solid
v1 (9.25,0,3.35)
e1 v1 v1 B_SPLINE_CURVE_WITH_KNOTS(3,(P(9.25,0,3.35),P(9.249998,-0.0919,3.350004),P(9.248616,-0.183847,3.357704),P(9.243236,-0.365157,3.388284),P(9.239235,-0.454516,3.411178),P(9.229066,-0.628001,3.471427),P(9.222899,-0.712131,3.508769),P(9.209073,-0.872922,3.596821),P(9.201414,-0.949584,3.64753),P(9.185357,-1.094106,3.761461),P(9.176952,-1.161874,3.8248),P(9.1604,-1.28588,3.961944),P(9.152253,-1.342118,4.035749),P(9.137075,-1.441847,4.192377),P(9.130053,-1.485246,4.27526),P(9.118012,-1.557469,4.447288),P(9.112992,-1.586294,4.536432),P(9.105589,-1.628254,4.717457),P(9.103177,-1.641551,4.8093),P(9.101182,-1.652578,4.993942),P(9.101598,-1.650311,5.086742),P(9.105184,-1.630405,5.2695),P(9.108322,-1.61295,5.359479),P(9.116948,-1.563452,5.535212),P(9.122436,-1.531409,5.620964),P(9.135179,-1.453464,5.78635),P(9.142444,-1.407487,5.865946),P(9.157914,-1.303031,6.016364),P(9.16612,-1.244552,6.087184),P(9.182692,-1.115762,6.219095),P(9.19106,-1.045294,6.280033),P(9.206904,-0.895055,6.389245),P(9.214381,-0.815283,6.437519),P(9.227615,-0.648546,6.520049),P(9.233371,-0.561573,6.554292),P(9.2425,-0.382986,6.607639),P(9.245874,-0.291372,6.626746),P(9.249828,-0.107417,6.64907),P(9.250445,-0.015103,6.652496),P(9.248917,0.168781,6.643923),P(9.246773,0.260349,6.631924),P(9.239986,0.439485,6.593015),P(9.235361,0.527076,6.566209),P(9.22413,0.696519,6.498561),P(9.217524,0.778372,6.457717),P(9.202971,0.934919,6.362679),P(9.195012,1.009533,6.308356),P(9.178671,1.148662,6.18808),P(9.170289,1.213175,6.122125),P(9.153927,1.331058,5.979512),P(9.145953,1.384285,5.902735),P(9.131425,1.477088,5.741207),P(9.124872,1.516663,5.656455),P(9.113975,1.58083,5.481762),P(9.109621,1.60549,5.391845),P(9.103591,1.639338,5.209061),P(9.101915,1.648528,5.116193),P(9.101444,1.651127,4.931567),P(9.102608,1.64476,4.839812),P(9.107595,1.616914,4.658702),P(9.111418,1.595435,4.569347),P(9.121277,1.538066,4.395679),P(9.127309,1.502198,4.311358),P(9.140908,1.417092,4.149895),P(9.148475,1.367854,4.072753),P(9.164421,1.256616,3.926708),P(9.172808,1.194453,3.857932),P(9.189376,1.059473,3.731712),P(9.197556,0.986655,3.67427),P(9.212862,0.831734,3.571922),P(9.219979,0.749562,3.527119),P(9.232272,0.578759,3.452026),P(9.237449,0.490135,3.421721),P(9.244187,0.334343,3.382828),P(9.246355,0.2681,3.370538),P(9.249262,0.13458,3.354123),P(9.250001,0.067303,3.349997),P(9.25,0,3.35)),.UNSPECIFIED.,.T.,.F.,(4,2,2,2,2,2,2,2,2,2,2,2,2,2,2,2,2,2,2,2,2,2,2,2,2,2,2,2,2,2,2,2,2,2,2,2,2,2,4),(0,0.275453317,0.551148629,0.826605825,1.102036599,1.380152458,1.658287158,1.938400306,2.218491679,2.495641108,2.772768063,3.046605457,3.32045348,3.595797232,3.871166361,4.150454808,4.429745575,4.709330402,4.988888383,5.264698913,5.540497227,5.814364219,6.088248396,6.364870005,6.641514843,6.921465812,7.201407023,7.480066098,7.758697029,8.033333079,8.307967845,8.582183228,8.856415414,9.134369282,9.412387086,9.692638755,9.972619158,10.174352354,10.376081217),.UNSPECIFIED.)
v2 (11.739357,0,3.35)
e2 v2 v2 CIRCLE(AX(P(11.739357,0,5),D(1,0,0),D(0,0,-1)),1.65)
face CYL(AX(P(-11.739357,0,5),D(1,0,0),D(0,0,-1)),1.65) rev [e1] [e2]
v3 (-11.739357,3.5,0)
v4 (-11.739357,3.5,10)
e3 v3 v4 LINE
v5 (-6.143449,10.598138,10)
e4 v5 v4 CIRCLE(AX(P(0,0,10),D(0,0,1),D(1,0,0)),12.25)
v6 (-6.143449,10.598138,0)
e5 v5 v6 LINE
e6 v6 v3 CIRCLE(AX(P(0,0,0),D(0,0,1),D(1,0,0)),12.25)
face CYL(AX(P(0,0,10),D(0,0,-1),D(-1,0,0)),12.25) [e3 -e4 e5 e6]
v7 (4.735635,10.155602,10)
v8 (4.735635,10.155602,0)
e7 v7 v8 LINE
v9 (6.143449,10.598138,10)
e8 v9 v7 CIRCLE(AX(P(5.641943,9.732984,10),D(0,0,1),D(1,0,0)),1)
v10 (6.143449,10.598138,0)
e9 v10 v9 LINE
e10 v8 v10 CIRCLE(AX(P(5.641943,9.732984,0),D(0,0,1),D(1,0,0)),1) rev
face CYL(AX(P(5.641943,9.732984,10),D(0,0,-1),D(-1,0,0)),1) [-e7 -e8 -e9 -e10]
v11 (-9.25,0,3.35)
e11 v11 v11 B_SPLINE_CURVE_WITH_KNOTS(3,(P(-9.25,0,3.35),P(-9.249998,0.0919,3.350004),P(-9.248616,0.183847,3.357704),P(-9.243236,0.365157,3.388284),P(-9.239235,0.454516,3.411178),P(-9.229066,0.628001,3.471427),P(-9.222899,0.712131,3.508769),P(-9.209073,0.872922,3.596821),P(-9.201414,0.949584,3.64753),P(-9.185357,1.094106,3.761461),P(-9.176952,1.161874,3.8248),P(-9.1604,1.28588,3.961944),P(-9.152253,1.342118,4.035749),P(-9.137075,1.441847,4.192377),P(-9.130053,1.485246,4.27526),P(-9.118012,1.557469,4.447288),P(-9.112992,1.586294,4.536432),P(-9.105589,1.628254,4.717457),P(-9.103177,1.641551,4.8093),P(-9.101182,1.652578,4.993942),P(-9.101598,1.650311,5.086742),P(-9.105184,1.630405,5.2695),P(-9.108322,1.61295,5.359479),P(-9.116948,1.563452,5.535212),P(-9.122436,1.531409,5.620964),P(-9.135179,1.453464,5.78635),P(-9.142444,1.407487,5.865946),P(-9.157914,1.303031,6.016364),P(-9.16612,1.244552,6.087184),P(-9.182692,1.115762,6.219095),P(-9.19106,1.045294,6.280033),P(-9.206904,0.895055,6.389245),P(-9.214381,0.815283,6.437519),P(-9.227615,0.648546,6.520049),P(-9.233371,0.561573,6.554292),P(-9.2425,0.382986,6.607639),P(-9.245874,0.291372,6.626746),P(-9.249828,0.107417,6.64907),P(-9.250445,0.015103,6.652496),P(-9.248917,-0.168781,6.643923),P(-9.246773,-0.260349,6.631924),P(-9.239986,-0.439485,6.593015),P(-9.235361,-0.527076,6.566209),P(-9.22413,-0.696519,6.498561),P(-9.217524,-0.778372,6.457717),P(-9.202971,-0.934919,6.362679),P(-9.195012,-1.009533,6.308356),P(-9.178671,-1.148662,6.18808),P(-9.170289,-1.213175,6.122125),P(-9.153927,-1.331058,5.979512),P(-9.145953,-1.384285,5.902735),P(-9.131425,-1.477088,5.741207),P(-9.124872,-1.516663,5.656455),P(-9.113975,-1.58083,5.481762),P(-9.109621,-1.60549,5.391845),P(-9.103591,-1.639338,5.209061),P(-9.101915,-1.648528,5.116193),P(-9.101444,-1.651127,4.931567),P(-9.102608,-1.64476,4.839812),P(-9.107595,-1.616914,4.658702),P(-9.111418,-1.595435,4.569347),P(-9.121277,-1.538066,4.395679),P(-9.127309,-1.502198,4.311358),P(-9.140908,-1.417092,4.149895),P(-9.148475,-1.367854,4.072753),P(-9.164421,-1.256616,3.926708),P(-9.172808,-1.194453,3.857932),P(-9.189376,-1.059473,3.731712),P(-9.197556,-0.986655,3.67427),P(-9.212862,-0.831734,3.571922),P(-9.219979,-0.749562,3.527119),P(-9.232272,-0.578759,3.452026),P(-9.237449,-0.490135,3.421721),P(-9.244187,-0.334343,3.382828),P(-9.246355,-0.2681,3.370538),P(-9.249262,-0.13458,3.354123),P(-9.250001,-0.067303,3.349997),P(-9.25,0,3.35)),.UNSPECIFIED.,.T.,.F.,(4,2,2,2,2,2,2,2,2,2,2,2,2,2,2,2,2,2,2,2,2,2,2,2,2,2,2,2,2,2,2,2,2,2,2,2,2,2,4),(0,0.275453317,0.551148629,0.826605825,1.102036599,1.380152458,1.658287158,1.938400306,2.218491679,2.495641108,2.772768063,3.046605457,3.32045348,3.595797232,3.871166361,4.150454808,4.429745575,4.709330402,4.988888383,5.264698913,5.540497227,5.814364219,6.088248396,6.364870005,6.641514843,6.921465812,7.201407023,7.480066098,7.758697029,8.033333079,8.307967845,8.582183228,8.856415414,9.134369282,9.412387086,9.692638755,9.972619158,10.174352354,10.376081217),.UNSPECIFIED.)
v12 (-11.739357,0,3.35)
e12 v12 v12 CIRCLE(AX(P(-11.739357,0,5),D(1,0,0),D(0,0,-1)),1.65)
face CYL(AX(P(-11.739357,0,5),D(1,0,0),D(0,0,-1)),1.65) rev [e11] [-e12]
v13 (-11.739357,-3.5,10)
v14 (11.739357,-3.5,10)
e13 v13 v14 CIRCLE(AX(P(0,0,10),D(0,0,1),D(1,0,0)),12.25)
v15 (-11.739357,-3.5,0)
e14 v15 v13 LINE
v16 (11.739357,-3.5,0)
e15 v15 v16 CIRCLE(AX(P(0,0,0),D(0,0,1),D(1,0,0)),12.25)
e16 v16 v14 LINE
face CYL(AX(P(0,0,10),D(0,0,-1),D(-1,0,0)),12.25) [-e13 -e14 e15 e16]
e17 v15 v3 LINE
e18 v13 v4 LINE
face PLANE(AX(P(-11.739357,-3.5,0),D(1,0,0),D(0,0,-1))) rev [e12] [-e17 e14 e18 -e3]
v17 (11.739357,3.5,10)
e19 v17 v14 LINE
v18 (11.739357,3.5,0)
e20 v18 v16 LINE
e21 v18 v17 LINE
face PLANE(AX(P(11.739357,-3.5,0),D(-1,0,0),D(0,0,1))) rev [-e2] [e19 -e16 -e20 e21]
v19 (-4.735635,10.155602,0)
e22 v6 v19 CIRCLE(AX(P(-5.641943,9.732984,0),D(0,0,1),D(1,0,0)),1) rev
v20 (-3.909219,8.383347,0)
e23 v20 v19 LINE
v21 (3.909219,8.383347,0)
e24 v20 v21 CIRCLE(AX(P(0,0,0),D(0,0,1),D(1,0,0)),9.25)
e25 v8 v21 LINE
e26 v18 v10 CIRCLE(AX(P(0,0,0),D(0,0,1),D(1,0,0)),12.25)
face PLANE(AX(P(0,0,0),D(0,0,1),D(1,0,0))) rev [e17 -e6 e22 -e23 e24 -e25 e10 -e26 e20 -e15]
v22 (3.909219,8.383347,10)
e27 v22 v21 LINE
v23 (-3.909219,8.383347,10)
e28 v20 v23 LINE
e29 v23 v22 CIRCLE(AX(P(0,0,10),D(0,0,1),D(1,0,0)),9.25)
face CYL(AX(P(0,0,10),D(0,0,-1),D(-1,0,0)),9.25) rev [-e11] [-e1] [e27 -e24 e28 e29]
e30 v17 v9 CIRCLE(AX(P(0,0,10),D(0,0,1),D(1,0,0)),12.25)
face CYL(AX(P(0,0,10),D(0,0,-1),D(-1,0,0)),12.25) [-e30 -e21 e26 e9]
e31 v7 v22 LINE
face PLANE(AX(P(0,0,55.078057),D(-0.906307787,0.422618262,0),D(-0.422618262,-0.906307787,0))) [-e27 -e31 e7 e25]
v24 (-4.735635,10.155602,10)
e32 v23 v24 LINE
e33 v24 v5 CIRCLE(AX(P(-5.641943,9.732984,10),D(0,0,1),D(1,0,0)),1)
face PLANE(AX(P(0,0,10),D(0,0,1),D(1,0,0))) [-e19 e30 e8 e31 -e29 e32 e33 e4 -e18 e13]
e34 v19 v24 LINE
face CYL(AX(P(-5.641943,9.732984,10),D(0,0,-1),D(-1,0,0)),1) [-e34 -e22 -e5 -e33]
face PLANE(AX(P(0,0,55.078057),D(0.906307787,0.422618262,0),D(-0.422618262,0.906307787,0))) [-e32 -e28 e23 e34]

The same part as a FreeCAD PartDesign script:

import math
import FreeCAD as App
import Part
import Sketcher
from FreeCAD import Vector
Q = App.Units.Quantity


def edges_at(feature, points):
    """Names of the edges that pass closest to the given points."""
    edges = feature.Shape.Edges
    near = lambda p: min(range(len(edges)), key=lambda i: edges[i].distToShape(Part.Vertex(*p))[0])
    return sorted({f"Edge{near(p) + 1}" for p in points})

doc = App.newDocument("Part")
params = doc.addObject("Spreadsheet::Sheet", "Params")
for row, (alias, value) in enumerate([
    ("sketch1_diameter", "24.5 mm"),
    ("sketch1_diameter2", "18.5 mm"),
    ("pad1_length", "10 mm"),
    ("sketch2_radius", "9.25 mm"),
    ("sketch2_radius2", "12.25 mm"),
    ("sketch3_height", "7 mm"),
    ("sketch4_diameter", "3.3 mm"),
    ("fillet_radius", "1 mm"),
], start=1):
    params.set(f"A{row}", alias)
    params.set(f"B{row}", "=" + value)
    params.setAlias(f"B{row}", alias)

body = doc.addObject("PartDesign::Body", "Body")

# Sketch on XY plane
sketch1 = doc.addObject("Sketcher::SketchObject", "Sketch")
body.addObject(sketch1)
sketch1.AttachmentSupport = (doc.XY_Plane, [""])
sketch1.MapMode = "FlatFace"
sketch1.addGeometry([
    Part.Circle(Vector(0, 0, 0), Vector(0, 0, 1), 12.25),
    Part.Circle(Vector(0, 0, 0), Vector(0, 0, 1), 9.25),
], False)
sketch1.addConstraint([
    Sketcher.Constraint("Coincident", 0, 3, -1, 1),
    Sketcher.Constraint("Coincident", 1, 3, -1, 1),
    Sketcher.Constraint("Diameter", 0, 24.5),
    Sketcher.Constraint("Diameter", 1, 18.5),
])
sketch1.setExpression("Constraints[2]", "Params.sketch1_diameter")
sketch1.setExpression("Constraints[3]", "Params.sketch1_diameter2")
pad1 = doc.addObject("PartDesign::Pad", "Pad")
body.addObject(pad1)
pad1.Profile = sketch1
pad1.setExpression("Length", "Params.pad1_length")

# Sketch on XY plane
sketch2 = doc.addObject("Sketcher::SketchObject", "Sketch001")
body.addObject(sketch2)
sketch2.AttachmentSupport = (doc.XY_Plane, [""])
sketch2.MapMode = "FlatFace"
sketch2.AttachmentOffset = App.Placement(Vector(0, 0, 10), App.Rotation())
sketch2.addGeometry([
    Part.LineSegment(Vector(-5.177074, 11.10227, 0), Vector(-3.909219, 8.383347, 0)),
    Part.ArcOfCircle(Part.Circle(Vector(0, 0, 0), Vector(0, 0, 1), 9.25), math.radians(65), math.radians(115)),
    Part.LineSegment(Vector(3.909219, 8.383347, 0), Vector(5.177074, 11.10227, 0)),
    Part.ArcOfCircle(Part.Circle(Vector(0, 0, 0), Vector(0, 0, 1), 12.25), math.radians(65), math.radians(115)),
], False)
sketch2.addConstraint([
    Sketcher.Constraint("Coincident", 0, 2, 1, 2),
    Sketcher.Constraint("Coincident", 1, 1, 2, 1),
    Sketcher.Constraint("Coincident", 2, 2, 3, 1),
    Sketcher.Constraint("Coincident", 3, 2, 0, 1),
    Sketcher.Constraint("Coincident", 1, 3, -1, 1),
    Sketcher.Constraint("Coincident", 3, 3, -1, 1),
    Sketcher.Constraint("Horizontal", 0, 2, 1, 1),
    Sketcher.Constraint("Horizontal", 2, 2, 3, 2),
    Sketcher.Constraint("Angle", 0, Q("-65 deg")),
    Sketcher.Constraint("Radius", 1, 9.25),
    Sketcher.Constraint("Radius", 3, 12.25),
    Sketcher.Constraint("DistanceX", 0, 2, -1, 1, 3.909219),
])
sketch2.setExpression("Constraints[9]", "Params.sketch2_radius")
sketch2.setExpression("Constraints[10]", "Params.sketch2_radius2")
pocket1 = doc.addObject("PartDesign::Pocket", "Pocket")
body.addObject(pocket1)
pocket1.Profile = sketch2
pocket1.Type = "ThroughAll"
pocket1.Midplane = True

# Sketch on XY plane
sketch3 = doc.addObject("Sketcher::SketchObject", "Sketch002")
body.addObject(sketch3)
sketch3.AttachmentSupport = (doc.XY_Plane, [""])
sketch3.MapMode = "FlatFace"
sketch3.AttachmentOffset = App.Placement(Vector(0, 0, 10), App.Rotation())
sketch3.addGeometry([
    Part.LineSegment(Vector(-21.378116, 3.5, 0), Vector(-21.378116, -3.5, 0)),  # 0
    Part.LineSegment(Vector(-21.378116, -3.5, 0), Vector(-11.739357, -3.5, 0)),  # 1
    Part.LineSegment(Vector(-11.739357, -3.5, 0), Vector(-11.739357, 3.5, 0)),  # 2
    Part.LineSegment(Vector(-11.739357, 3.5, 0), Vector(-21.378116, 3.5, 0)),  # 3
    Part.LineSegment(Vector(11.739357, 3.5, 0), Vector(11.739357, -3.5, 0)),  # 4
    Part.LineSegment(Vector(11.739357, -3.5, 0), Vector(21.378116, -3.5, 0)),  # 5
    Part.LineSegment(Vector(21.378116, -3.5, 0), Vector(21.378116, 3.5, 0)),  # 6
    Part.LineSegment(Vector(21.378116, 3.5, 0), Vector(11.739357, 3.5, 0)),  # 7
], False)
sketch3.addConstraint([
    Sketcher.Constraint("Coincident", 0, 2, 1, 1),
    Sketcher.Constraint("Coincident", 1, 2, 2, 1),
    Sketcher.Constraint("Coincident", 2, 2, 3, 1),
    Sketcher.Constraint("Coincident", 3, 2, 0, 1),
    Sketcher.Constraint("Coincident", 4, 2, 5, 1),
    Sketcher.Constraint("Coincident", 5, 2, 6, 1),
    Sketcher.Constraint("Coincident", 6, 2, 7, 1),
    Sketcher.Constraint("Coincident", 7, 2, 4, 1),
    Sketcher.Constraint("Vertical", 0),
    Sketcher.Constraint("Horizontal", 1),
    Sketcher.Constraint("Vertical", 2),
    Sketcher.Constraint("Horizontal", 3),
    Sketcher.Constraint("Vertical", 4),
    Sketcher.Constraint("Horizontal", 5),
    Sketcher.Constraint("Vertical", 6),
    Sketcher.Constraint("Horizontal", 7),
    Sketcher.Constraint("Symmetric", 2, 2, 4, 2, -1, 1),
    Sketcher.Constraint("Symmetric", 0, 2, 6, 2, -1, 1),
    Sketcher.Constraint("Horizontal", 1, 2, 4, 2),
    Sketcher.Constraint("DistanceY", 0, 2, 0, 1, 7.0),
    Sketcher.Constraint("DistanceX", 1, 1, 1, 2, 9.638759),
    Sketcher.Constraint("DistanceX", 0, 2, 5, 2, 42.756231),
])
sketch3.setExpression("Constraints[19]", "Params.sketch3_height")
pocket2 = doc.addObject("PartDesign::Pocket", "Pocket001")
body.addObject(pocket2)
pocket2.Profile = sketch3
pocket2.Type = "ThroughAll"

# Sketch on YZ plane
sketch4 = doc.addObject("Sketcher::SketchObject", "Sketch003")
body.addObject(sketch4)
sketch4.AttachmentSupport = (doc.YZ_Plane, [""])
sketch4.MapMode = "FlatFace"
sketch4.AttachmentOffset = App.Placement(Vector(0, 0, 11.739357), App.Rotation())
sketch4.addGeometry(Part.Circle(Vector(0, 5, 0), Vector(0, 0, 1), 1.65), False)
sketch4.addConstraint([
    Sketcher.Constraint("PointOnObject", 0, 3, -2),
    Sketcher.Constraint("Diameter", 0, 3.3),
    Sketcher.Constraint("DistanceY", -1, 1, 0, 3, 5.0),
])
sketch4.setExpression("Constraints[1]", "Params.sketch4_diameter")
pocket3 = doc.addObject("PartDesign::Pocket", "Pocket002")
body.addObject(pocket3)
pocket3.Profile = sketch4
pocket3.Type = "ThroughAll"
doc.recompute()

fillet = doc.addObject("PartDesign::Fillet", "Fillet")
body.addObject(fillet)
fillet.Base = (pocket3, edges_at(pocket3, [(-5.177, 11.102, 5), (5.177, 11.102, 5)]))
fillet.setExpression("Radius", "Params.fillet_radius")

doc.recompute()
